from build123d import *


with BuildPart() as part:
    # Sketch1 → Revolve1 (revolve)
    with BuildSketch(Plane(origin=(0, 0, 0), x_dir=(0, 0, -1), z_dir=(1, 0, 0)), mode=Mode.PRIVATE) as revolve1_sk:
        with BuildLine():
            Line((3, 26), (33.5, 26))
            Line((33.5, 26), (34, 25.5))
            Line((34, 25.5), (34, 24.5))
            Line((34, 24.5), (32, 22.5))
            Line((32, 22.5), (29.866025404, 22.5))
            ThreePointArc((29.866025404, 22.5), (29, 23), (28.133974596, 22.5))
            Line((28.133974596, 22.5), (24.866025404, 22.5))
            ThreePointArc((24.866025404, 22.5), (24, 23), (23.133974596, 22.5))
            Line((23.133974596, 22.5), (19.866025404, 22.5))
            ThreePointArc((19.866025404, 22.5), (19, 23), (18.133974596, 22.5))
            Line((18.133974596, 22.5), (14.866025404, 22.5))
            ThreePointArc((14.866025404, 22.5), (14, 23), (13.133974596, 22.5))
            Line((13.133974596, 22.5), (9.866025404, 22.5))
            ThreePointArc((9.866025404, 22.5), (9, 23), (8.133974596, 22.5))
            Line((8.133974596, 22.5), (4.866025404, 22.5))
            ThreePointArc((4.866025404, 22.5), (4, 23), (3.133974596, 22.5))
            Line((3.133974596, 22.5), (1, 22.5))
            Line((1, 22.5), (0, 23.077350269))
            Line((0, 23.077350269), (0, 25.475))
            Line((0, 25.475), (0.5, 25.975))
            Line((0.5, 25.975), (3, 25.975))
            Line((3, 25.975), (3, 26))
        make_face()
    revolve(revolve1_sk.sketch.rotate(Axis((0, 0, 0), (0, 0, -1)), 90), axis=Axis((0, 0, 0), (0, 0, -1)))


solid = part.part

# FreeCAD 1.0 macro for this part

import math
import FreeCAD as App
import Part
import Sketcher
from FreeCAD import Vector
Q = App.Units.Quantity

doc = App.newDocument("Part")
body = doc.addObject("PartDesign::Body", "Body")

# Sketch on YZ plane
sketch1 = body.newObject("Sketcher::SketchObject", "Sketch")
sketch1.AttachmentSupport = (doc.getObject("YZ_Plane"), [""])
sketch1.MapMode = "FlatFace"
sketch1.addGeometry([
    Part.LineSegment(Vector(26, -33.5, 0), Vector(26, -3, 0)),  # 0
    Part.LineSegment(Vector(26, -3, 0), Vector(25.975, -3, 0)),  # 1
    Part.LineSegment(Vector(25.975, -3, 0), Vector(25.975, -0.5, 0)),  # 2
    Part.LineSegment(Vector(25.975, -0.5, 0), Vector(25.475, 0, 0)),  # 3
    Part.LineSegment(Vector(25.475, 0, 0), Vector(23.077, 0, 0)),  # 4
    Part.LineSegment(Vector(23.077, 0, 0), Vector(22.5, -1, 0)),  # 5
    Part.LineSegment(Vector(22.5, -1, 0), Vector(22.5, -3.134, 0)),  # 6
    Part.ArcOfCircle(Part.Circle(Vector(22, -4, 0), Vector(0, 0, 1), 1), math.radians(-60), math.radians(60)),  # 7
    Part.LineSegment(Vector(22.5, -4.866, 0), Vector(22.5, -8.134, 0)),  # 8
    Part.ArcOfCircle(Part.Circle(Vector(22, -9, 0), Vector(0, 0, 1), 1), math.radians(-60), math.radians(60)),  # 9
    Part.LineSegment(Vector(22.5, -9.866, 0), Vector(22.5, -13.134, 0)),  # 10
    Part.ArcOfCircle(Part.Circle(Vector(22, -14, 0), Vector(0, 0, 1), 1), math.radians(-60), math.radians(60)),  # 11
    Part.LineSegment(Vector(22.5, -14.866, 0), Vector(22.5, -18.134, 0)),  # 12
    Part.ArcOfCircle(Part.Circle(Vector(22, -19, 0), Vector(0, 0, 1), 1), math.radians(-60), math.radians(60)),  # 13
    Part.LineSegment(Vector(22.5, -19.866, 0), Vector(22.5, -23.134, 0)),  # 14
    Part.ArcOfCircle(Part.Circle(Vector(22, -24, 0), Vector(0, 0, 1), 1), math.radians(-60), math.radians(60)),  # 15
    Part.LineSegment(Vector(22.5, -24.866, 0), Vector(22.5, -28.134, 0)),  # 16
    Part.ArcOfCircle(Part.Circle(Vector(22, -29, 0), Vector(0, 0, 1), 1), math.radians(-60), math.radians(60)),  # 17
    Part.LineSegment(Vector(22.5, -29.866, 0), Vector(22.5, -32, 0)),  # 18
    Part.LineSegment(Vector(22.5, -32, 0), Vector(24.5, -34, 0)),  # 19
    Part.LineSegment(Vector(24.5, -34, 0), Vector(25.5, -34, 0)),  # 20
    Part.LineSegment(Vector(25.5, -34, 0), Vector(26, -33.5, 0)),  # 21
], False)
sketch1.addConstraint([
    Sketcher.Constraint("Coincident", 0, 2, 1, 1),
    Sketcher.Constraint("Coincident", 1, 2, 2, 1),
    Sketcher.Constraint("Coincident", 2, 2, 3, 1),
    Sketcher.Constraint("Coincident", 3, 2, 4, 1),
    Sketcher.Constraint("Coincident", 4, 2, 5, 1),
    Sketcher.Constraint("Coincident", 5, 2, 6, 1),
    Sketcher.Constraint("Coincident", 6, 2, 7, 2),
    Sketcher.Constraint("Coincident", 7, 1, 8, 1),
    Sketcher.Constraint("Coincident", 8, 2, 9, 2),
    Sketcher.Constraint("Coincident", 9, 1, 10, 1),
    Sketcher.Constraint("Coincident", 10, 2, 11, 2),
    Sketcher.Constraint("Coincident", 11, 1, 12, 1),
    Sketcher.Constraint("Coincident", 12, 2, 13, 2),
    Sketcher.Constraint("Coincident", 13, 1, 14, 1),
    Sketcher.Constraint("Coincident", 14, 2, 15, 2),
    Sketcher.Constraint("Coincident", 15, 1, 16, 1),
    Sketcher.Constraint("Coincident", 16, 2, 17, 2),
    Sketcher.Constraint("Coincident", 17, 1, 18, 1),
    Sketcher.Constraint("Coincident", 18, 2, 19, 1),
    Sketcher.Constraint("Coincident", 19, 2, 20, 1),
    Sketcher.Constraint("Coincident", 20, 2, 21, 1),
    Sketcher.Constraint("Coincident", 21, 2, 0, 1),
    Sketcher.Constraint("Vertical", 0),
    Sketcher.Constraint("Horizontal", 1),
    Sketcher.Constraint("Vertical", 2),
    Sketcher.Constraint("Horizontal", 4),
    Sketcher.Constraint("Vertical", 6),
    Sketcher.Constraint("Vertical", 8),
    Sketcher.Constraint("Vertical", 10),
    Sketcher.Constraint("Vertical", 12),
    Sketcher.Constraint("Vertical", 14),
    Sketcher.Constraint("Vertical", 16),
    Sketcher.Constraint("Vertical", 18),
    Sketcher.Constraint("Horizontal", 20),
    Sketcher.Constraint("Equal", 7, 9),
    Sketcher.Constraint("Equal", 9, 11),
    Sketcher.Constraint("Equal", 11, 13),
    Sketcher.Constraint("Equal", 13, 15),
    Sketcher.Constraint("Equal", 15, 17),
    Sketcher.Constraint("PointOnObject", 3, 2, -1),
    Sketcher.Constraint("Parallel", 3, 19),
    Sketcher.Constraint("Perpendicular", 19, 21),
    Sketcher.Constraint("Vertical", 7, 3, 9, 3),
    Sketcher.Constraint("Vertical", 9, 3, 11, 3),
    Sketcher.Constraint("Vertical", 11, 3, 13, 3),
    Sketcher.Constraint("Vertical", 13, 3, 15, 3),
    Sketcher.Constraint("Vertical", 15, 3, 17, 3),
    Sketcher.Constraint("Vertical", 6, 2, 7, 1),
    Sketcher.Constraint("Vertical", 8, 2, 9, 1),
    Sketcher.Constraint("Vertical", 10, 2, 11, 1),
    Sketcher.Constraint("Vertical", 12, 2, 13, 1),
    Sketcher.Constraint("Vertical", 14, 2, 15, 1),
    Sketcher.Constraint("Vertical", 16, 2, 17, 1),
    Sketcher.Constraint("Equal", 8, 10),
    Sketcher.Constraint("Equal", 10, 12),
    Sketcher.Constraint("Equal", 12, 14),
    Sketcher.Constraint("Equal", 14, 16),
    Sketcher.Constraint("Equal", 6, 18),
    Sketcher.Constraint("Equal", 3, 21),
    Sketcher.Constraint("Radius", 7, 1.0),
    Sketcher.Constraint("DistanceX", 20, 1, 20, 2, 1.0),
    Sketcher.Constraint("Angle", 3, Q("135 deg")),
    Sketcher.Constraint("Angle", 5, Q("-120 deg")),
    Sketcher.Constraint("DistanceY", 0, 1, 0, 2, 30.5),
    Sketcher.Constraint("DistanceY", 2, 1, 2, 2, 2.5),
    Sketcher.Constraint("DistanceX", -1, 1, 7, 3, 22.0),
    Sketcher.Constraint("DistanceY", 7, 3, -1, 1, 4.0),
    Sketcher.Constraint("DistanceY", 9, 3, -1, 1, 9.0),
    Sketcher.Constraint("DistanceX", -1, 1, 0, 2, 26.0),
    Sketcher.Constraint("DistanceY", 0, 2, -1, 1, 3.0),
    Sketcher.Constraint("DistanceY", 5, 2, -1, 1, 1.0),
    Sketcher.Constraint("DistanceX", 1, 2, 1, 1, 0.025),
])
revolution = body.newObject("PartDesign::Revolution", "Revolution")
revolution.Profile = sketch1
revolution.ReferenceAxis = (sketch1, ["V_Axis"])
revolution.Angle = 360

doc.recompute()
